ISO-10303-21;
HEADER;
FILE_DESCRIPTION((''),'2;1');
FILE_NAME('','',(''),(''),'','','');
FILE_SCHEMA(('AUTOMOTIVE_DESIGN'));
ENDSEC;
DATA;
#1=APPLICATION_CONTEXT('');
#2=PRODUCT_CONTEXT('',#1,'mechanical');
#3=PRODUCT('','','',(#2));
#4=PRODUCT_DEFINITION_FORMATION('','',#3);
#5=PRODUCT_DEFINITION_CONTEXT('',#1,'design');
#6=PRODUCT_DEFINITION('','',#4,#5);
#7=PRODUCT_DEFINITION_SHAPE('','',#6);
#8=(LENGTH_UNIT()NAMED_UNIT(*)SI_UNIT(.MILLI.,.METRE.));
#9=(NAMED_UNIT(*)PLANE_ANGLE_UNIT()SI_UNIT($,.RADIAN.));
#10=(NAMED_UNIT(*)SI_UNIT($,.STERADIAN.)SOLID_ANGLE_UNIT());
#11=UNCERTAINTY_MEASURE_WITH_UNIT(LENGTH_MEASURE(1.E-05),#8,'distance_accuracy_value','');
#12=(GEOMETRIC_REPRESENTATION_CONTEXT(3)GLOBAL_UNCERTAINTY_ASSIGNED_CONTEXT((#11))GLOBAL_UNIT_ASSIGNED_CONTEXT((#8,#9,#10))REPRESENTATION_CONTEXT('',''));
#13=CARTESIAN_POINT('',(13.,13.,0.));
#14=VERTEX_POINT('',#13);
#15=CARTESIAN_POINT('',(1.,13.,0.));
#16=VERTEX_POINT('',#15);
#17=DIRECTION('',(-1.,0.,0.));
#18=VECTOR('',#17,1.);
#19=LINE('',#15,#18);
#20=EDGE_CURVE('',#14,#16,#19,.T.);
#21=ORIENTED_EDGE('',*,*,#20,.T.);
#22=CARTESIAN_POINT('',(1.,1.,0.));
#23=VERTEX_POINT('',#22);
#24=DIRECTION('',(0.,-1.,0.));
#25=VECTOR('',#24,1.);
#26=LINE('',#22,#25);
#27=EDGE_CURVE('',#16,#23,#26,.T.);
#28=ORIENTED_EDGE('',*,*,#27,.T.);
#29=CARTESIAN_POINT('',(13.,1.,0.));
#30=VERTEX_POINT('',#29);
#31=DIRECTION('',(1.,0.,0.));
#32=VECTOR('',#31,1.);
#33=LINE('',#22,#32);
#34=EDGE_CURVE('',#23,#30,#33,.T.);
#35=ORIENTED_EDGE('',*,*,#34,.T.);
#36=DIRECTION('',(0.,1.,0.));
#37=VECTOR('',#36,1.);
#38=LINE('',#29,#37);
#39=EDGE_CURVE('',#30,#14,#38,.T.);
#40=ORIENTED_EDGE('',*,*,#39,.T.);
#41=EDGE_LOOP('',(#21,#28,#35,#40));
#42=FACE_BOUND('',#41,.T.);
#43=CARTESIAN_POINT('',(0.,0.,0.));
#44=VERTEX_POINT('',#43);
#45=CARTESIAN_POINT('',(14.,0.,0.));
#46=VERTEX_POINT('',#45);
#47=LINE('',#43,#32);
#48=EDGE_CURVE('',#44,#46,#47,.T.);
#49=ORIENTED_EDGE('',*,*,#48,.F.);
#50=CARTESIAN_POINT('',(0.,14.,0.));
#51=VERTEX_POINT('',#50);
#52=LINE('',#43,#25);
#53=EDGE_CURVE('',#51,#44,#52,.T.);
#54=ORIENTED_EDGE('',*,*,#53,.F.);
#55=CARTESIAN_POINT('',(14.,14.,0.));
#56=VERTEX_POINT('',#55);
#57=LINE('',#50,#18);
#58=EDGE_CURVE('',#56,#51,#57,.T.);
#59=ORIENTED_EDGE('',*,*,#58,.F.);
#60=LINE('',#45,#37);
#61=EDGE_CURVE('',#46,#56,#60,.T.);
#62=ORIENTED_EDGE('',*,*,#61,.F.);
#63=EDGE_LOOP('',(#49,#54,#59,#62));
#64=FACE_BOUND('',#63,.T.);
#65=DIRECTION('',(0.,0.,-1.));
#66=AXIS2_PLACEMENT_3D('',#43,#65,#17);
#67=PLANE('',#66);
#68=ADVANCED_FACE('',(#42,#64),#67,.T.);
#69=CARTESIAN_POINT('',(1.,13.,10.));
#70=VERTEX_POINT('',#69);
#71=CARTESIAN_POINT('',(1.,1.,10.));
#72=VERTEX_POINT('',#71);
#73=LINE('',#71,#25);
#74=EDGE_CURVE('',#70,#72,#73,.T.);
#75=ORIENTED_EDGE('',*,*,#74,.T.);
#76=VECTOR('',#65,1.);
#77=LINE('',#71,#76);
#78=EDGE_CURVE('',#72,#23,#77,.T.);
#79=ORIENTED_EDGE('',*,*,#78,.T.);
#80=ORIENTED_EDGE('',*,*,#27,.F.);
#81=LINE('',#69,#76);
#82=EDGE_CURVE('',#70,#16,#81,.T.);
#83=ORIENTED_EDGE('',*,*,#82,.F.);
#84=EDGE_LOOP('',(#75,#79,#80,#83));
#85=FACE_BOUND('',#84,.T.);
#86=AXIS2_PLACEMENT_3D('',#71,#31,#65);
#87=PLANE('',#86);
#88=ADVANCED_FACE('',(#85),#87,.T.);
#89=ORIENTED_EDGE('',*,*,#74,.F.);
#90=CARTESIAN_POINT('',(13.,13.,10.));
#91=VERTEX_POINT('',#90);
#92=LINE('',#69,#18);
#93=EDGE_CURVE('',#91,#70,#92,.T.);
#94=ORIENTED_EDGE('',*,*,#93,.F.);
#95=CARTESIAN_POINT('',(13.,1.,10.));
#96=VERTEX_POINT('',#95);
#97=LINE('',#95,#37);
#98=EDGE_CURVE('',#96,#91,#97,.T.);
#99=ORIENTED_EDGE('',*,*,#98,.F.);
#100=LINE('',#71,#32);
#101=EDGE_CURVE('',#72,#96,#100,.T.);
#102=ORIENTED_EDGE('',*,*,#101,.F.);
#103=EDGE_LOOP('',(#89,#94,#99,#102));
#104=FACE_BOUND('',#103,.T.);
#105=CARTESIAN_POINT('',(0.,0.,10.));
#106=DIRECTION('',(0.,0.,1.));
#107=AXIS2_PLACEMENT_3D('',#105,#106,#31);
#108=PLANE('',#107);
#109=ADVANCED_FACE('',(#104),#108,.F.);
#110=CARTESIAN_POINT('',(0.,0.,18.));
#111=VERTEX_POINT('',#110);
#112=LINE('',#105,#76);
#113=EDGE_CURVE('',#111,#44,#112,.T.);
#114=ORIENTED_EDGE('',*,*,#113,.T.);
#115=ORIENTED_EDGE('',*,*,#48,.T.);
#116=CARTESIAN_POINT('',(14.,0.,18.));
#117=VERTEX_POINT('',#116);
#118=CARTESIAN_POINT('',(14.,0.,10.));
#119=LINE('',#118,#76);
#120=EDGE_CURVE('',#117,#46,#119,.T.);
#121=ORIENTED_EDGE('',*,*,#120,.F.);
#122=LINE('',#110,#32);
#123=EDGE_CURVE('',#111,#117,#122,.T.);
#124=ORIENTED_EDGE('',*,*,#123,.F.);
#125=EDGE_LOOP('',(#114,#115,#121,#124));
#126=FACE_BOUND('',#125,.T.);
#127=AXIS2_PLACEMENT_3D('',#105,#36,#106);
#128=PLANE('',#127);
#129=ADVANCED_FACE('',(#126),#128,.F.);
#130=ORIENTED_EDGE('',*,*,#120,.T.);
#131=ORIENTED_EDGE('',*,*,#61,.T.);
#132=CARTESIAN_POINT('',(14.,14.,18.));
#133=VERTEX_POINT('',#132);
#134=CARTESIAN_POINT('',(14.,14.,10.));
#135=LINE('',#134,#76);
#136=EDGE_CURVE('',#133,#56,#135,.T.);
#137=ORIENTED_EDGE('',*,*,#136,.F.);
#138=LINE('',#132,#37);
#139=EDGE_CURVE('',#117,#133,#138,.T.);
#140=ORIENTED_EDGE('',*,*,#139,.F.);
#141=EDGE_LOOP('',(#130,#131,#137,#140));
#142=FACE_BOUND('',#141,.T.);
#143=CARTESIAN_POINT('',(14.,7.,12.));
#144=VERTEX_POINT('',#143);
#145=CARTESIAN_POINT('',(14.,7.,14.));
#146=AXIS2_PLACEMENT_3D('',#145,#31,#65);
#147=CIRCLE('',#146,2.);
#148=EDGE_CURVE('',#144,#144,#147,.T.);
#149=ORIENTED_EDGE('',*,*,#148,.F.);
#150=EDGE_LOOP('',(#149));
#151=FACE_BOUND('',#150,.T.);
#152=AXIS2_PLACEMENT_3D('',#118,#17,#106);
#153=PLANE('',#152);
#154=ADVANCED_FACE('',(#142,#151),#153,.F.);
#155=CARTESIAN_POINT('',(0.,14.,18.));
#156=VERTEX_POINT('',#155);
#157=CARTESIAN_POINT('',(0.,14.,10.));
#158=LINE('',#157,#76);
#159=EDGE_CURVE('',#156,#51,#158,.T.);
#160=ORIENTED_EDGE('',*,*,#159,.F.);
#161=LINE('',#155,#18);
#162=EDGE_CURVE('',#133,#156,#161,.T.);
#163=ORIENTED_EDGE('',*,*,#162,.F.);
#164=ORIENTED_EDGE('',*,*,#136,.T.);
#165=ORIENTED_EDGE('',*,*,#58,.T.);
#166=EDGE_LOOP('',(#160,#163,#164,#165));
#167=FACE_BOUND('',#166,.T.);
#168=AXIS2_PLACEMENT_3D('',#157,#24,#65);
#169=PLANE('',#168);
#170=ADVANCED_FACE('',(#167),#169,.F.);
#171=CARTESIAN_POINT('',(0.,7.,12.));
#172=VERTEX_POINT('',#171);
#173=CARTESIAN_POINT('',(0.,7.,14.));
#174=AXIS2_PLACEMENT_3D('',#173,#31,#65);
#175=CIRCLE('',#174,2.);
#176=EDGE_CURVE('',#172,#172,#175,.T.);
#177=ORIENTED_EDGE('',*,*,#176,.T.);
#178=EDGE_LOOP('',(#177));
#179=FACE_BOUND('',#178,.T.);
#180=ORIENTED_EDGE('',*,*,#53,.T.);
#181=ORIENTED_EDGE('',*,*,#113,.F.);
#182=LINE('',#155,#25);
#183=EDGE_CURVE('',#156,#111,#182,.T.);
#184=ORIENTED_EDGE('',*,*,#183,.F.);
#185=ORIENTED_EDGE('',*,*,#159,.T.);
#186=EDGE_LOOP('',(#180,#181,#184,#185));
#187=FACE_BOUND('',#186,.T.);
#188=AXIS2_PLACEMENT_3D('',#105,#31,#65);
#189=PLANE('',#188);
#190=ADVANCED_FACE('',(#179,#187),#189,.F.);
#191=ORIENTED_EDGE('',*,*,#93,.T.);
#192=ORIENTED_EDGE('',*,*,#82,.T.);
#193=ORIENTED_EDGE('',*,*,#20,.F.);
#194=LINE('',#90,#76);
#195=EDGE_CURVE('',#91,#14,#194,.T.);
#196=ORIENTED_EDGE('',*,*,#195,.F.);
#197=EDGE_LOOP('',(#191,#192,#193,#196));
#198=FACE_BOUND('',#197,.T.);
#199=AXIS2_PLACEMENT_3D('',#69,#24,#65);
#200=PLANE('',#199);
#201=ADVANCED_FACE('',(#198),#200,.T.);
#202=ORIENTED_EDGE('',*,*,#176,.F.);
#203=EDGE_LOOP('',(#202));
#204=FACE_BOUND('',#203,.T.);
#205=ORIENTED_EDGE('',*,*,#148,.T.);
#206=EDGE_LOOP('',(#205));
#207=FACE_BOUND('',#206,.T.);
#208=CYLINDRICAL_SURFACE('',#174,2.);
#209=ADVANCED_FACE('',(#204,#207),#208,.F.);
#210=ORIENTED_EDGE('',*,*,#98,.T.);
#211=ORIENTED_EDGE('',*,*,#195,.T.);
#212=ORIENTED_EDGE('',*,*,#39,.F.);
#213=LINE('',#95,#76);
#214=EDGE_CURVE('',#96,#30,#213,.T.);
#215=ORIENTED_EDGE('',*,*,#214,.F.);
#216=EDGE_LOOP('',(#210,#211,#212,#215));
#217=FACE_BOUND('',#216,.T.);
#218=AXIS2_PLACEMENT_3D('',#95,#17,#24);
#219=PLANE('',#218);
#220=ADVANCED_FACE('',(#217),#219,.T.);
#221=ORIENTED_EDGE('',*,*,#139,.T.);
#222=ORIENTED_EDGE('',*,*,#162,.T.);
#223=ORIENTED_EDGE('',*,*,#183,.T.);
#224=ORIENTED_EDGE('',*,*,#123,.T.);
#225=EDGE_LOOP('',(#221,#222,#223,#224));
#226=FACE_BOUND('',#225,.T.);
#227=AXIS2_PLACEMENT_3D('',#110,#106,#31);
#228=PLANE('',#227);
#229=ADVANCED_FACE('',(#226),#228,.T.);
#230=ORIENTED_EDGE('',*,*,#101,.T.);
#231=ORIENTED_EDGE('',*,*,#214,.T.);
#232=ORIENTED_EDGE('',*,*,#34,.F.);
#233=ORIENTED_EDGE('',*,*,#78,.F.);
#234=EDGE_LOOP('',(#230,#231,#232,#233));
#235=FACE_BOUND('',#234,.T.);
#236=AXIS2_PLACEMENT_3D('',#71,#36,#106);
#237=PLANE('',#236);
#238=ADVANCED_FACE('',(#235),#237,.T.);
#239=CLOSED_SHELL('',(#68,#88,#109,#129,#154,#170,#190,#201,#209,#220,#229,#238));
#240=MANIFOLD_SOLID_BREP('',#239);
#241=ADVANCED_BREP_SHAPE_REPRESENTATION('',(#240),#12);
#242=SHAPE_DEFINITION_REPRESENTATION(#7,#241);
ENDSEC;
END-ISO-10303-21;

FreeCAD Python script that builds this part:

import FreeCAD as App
import Part
import Sketcher
from FreeCAD import Vector


def add_polygon(sketch, points):
    """Adds a closed chain of lines whose ends are joined by coincident constraints."""
    first, n = sketch.GeometryCount, len(points)
    for a, b in zip(points, points[1:] + points[:1]):
        sketch.addGeometry(Part.LineSegment(App.Vector(*a, 0), App.Vector(*b, 0)), False)
    for i in range(n):
        sketch.addConstraint(Sketcher.Constraint("Coincident", first + i, 2, first + (i + 1) % n, 1))

doc = App.newDocument("Part")
body = doc.addObject("PartDesign::Body", "Body")

# Sketch on XY plane
sketch1 = body.newObject("Sketcher::SketchObject", "Sketch")
sketch1.AttachmentSupport = (doc.getObject("XY_Plane"), [""])
sketch1.MapMode = "FlatFace"
add_polygon(sketch1, [(0, 14), (0, 0), (14, 0), (14, 14)])  # lines 0-3
add_polygon(sketch1, [(13, 1), (1, 1), (1, 13), (13, 13)])  # lines 4-7
sketch1.addConstraint([
    Sketcher.Constraint("Vertical", 0),
    Sketcher.Constraint("Horizontal", 1),
    Sketcher.Constraint("Vertical", 2),
    Sketcher.Constraint("Horizontal", 3),
    Sketcher.Constraint("Horizontal", 4),
    Sketcher.Constraint("Vertical", 5),
    Sketcher.Constraint("Horizontal", 6),
    Sketcher.Constraint("Vertical", 7),
    Sketcher.Constraint("Coincident", 0, 2, -1, 1),
    Sketcher.Constraint("Equal", 3, 0),
    Sketcher.Constraint("Equal", 6, 5),
    Sketcher.Constraint("DistanceX", 1, 1, 1, 2, 14.0),
    Sketcher.Constraint("DistanceX", 4, 2, 4, 1, 12.0),
    Sketcher.Constraint("DistanceX", -1, 1, 4, 2, 1.0),
    Sketcher.Constraint("DistanceY", -1, 1, 4, 2, 1.0),
])
pad1 = body.newObject("PartDesign::Pad", "Pad")
pad1.Profile = sketch1
pad1.Length = 10

# Sketch on XY plane
sketch2 = body.newObject("Sketcher::SketchObject", "Sketch001")
sketch2.AttachmentSupport = (doc.getObject("XY_Plane"), [""])
sketch2.MapMode = "FlatFace"
sketch2.AttachmentOffset = App.Placement(Vector(0, 0, 10), App.Rotation())
add_polygon(sketch2, [(0, 14), (0, 0), (14, 0), (14, 14)])  # lines 0-3
sketch2.addConstraint([
    Sketcher.Constraint("Vertical", 0),
    Sketcher.Constraint("Horizontal", 1),
    Sketcher.Constraint("Vertical", 2),
    Sketcher.Constraint("Horizontal", 3),
    Sketcher.Constraint("Coincident", 0, 2, -1, 1),
    Sketcher.Constraint("Equal", 3, 0),
    Sketcher.Constraint("DistanceX", 1, 1, 1, 2, 14.0),
])
pad2 = body.newObject("PartDesign::Pad", "Pad001")
pad2.Profile = sketch2
pad2.Length = 8

# Sketch on YZ plane
sketch3 = body.newObject("Sketcher::SketchObject", "Sketch002")
sketch3.AttachmentSupport = (doc.getObject("YZ_Plane"), [""])
sketch3.MapMode = "FlatFace"
sketch3.AttachmentOffset = App.Placement(Vector(0, 0, 14), App.Rotation())
sketch3.addGeometry(Part.Circle(Vector(7, 14, 0), Vector(0, 0, 1), 2), False)
sketch3.addConstraint([
    Sketcher.Constraint("Diameter", 0, 4.0),
    Sketcher.Constraint("DistanceX", -1, 1, 0, 3, 7.0),
    Sketcher.Constraint("DistanceY", -1, 1, 0, 3, 14.0),
])
pocket1 = body.newObject("PartDesign::Pocket", "Pocket")
pocket1.Profile = sketch3
pocket1.Length = 14

doc.recompute()
